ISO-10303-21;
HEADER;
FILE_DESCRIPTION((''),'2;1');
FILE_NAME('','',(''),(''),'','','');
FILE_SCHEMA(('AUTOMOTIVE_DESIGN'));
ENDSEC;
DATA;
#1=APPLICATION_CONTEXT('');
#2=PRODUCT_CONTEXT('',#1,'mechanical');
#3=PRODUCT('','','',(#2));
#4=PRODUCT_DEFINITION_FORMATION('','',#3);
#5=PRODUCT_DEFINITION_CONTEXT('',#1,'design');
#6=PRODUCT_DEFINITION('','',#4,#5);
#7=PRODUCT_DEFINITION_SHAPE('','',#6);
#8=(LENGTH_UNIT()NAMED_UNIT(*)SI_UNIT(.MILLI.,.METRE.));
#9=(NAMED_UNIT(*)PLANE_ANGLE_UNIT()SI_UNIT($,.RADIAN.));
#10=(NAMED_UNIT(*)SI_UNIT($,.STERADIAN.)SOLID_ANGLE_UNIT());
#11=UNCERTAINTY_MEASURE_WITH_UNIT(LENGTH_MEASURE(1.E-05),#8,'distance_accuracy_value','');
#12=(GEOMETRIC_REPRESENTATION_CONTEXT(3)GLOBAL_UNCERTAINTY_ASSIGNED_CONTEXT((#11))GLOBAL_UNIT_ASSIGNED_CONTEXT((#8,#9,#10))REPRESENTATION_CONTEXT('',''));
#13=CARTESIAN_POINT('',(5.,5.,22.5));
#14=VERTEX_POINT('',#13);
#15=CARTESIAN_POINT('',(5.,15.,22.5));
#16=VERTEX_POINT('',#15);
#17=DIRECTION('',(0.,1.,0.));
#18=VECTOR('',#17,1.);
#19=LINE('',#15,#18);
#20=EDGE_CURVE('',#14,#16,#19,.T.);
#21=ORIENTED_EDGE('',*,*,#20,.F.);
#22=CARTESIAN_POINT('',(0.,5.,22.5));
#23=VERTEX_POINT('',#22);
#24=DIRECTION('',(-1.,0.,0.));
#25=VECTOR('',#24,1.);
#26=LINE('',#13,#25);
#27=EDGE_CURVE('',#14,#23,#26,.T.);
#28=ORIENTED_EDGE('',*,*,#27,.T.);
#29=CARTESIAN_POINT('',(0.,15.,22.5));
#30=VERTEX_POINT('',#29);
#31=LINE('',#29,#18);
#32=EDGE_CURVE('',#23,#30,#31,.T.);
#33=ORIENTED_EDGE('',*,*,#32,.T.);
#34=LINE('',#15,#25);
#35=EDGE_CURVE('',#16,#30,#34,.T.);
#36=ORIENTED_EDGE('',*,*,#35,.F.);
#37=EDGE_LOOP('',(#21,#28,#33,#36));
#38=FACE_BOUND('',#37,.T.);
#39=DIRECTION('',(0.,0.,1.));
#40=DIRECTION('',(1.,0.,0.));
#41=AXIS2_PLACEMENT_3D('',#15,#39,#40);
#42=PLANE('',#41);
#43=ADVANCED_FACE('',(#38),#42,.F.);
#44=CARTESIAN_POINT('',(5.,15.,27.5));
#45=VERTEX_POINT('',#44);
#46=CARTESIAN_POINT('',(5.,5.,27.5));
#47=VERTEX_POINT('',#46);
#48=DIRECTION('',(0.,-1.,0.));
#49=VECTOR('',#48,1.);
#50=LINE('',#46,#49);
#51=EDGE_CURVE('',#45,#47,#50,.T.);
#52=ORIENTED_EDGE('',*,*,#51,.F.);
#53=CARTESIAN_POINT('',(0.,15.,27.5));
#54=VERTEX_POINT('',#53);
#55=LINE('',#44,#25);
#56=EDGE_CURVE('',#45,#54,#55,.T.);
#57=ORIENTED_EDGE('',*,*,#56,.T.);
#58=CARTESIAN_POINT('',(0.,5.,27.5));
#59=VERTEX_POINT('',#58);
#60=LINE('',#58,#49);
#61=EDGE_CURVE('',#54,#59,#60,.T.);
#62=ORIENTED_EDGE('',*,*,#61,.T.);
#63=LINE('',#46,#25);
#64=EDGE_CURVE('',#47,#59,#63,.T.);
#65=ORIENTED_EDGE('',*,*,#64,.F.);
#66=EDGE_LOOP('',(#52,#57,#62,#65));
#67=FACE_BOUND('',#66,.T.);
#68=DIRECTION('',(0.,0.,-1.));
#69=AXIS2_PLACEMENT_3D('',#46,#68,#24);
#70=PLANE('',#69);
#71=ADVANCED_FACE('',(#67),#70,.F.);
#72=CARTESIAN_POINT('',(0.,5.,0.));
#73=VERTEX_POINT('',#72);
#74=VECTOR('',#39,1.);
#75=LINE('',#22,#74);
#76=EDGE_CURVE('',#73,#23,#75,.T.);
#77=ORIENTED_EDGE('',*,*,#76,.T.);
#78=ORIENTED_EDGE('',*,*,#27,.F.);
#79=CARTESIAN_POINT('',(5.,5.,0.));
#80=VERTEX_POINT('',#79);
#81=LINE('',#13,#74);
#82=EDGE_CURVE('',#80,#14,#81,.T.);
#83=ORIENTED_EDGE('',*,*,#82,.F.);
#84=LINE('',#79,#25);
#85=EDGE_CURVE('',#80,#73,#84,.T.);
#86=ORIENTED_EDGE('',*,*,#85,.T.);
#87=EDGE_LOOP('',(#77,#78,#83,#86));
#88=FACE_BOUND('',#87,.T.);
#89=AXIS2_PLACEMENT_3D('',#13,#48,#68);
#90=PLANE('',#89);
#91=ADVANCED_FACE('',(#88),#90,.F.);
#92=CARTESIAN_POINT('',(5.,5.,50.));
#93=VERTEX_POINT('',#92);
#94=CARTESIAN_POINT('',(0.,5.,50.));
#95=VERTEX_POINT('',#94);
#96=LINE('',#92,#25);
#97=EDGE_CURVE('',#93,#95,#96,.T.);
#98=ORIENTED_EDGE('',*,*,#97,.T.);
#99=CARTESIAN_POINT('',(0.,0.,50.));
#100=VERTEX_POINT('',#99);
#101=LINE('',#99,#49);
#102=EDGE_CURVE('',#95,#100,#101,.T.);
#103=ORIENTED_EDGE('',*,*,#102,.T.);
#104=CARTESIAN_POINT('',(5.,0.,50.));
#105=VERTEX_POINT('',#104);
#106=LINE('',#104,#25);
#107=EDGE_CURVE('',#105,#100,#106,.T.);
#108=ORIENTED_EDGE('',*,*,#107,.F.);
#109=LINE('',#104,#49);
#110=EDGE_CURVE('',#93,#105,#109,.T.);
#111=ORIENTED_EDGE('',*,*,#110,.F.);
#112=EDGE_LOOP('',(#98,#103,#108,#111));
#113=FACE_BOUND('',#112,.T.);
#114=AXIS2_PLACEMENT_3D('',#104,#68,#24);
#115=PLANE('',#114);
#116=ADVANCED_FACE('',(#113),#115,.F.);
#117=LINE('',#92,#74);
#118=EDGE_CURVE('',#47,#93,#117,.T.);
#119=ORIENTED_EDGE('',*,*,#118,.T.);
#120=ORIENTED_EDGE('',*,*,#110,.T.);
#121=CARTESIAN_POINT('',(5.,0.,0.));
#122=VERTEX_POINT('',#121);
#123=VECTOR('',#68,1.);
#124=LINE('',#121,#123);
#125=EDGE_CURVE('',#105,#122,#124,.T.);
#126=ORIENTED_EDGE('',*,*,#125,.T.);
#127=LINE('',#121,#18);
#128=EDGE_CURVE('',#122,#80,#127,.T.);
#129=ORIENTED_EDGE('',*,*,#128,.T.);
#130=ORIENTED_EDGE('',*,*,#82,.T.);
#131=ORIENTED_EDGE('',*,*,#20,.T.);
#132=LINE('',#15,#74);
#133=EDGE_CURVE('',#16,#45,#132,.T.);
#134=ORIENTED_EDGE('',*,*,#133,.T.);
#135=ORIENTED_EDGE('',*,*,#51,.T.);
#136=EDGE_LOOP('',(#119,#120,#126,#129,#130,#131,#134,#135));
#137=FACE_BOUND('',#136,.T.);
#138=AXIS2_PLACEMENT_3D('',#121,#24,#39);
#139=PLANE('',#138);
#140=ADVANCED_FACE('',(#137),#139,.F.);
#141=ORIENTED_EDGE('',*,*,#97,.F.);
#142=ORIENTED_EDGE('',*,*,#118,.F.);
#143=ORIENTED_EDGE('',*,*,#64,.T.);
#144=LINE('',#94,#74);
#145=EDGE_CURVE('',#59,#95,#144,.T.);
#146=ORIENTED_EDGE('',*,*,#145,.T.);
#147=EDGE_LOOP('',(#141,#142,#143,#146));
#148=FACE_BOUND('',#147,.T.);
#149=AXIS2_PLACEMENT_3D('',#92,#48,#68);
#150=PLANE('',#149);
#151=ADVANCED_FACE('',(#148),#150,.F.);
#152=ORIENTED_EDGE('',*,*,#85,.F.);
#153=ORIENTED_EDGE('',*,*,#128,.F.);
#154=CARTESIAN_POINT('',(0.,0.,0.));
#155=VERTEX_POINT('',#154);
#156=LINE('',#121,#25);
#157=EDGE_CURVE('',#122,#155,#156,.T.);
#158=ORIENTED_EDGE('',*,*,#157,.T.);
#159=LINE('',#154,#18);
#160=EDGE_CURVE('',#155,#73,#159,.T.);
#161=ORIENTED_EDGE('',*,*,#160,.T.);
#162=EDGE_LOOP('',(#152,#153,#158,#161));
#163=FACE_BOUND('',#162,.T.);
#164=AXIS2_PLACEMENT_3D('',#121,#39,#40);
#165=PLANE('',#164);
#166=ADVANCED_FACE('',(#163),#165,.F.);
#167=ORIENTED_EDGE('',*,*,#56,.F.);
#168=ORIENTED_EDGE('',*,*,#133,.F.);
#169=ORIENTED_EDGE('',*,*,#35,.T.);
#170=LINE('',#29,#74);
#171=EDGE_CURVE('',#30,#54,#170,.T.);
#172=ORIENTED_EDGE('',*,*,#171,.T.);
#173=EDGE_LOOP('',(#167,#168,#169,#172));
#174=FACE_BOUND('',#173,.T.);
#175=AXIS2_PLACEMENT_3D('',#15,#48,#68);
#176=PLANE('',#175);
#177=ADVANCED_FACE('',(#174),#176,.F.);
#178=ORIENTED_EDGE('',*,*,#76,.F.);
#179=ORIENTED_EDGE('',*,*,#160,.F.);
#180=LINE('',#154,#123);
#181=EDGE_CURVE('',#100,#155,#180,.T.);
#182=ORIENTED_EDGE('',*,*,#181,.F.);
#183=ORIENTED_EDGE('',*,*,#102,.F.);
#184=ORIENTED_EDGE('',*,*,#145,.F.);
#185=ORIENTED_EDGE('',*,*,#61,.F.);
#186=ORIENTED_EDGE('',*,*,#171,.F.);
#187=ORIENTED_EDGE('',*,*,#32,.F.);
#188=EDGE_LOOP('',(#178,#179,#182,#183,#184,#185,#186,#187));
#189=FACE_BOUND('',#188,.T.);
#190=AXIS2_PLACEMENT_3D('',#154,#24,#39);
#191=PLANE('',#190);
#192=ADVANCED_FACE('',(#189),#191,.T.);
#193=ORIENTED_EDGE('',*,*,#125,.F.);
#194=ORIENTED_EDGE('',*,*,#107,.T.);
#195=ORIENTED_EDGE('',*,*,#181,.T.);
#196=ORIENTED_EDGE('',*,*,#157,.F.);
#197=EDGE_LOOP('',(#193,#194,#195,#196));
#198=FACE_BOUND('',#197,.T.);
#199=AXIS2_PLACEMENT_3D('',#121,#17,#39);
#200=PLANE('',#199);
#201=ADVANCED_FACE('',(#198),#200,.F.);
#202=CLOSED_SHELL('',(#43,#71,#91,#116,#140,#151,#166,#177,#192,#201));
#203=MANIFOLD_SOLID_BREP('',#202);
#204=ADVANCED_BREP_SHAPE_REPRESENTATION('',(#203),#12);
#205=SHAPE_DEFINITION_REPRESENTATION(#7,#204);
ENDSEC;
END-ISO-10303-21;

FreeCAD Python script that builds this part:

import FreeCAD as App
import Part
import Sketcher

V = App.Vector


def add_polygon(sketch, points):
    """Adds a closed chain of lines whose ends are joined by coincident constraints."""
    first, n = sketch.GeometryCount, len(points)
    for a, b in zip(points, points[1:] + points[:1]):
        sketch.addGeometry(Part.LineSegment(App.Vector(*a, 0), App.Vector(*b, 0)), False)
    for i in range(n):
        sketch.addConstraint(Sketcher.Constraint("Coincident", first + i, 2, first + (i + 1) % n, 1))

doc = App.newDocument("Part")
params = doc.addObject("Spreadsheet::Sheet", "Params")
for row, (alias, value) in enumerate([
    ("sketch1_width", "5 mm"),
    ("sketch1_width2", "10 mm"),
    ("sketch1_height", "50 mm"),
    ("pad1_length", "5 mm"),
], start=1):
    params.set(f"A{row}", alias)
    params.set(f"B{row}", "=" + value)
    params.setAlias(f"B{row}", alias)

body = doc.addObject("PartDesign::Body", "Body")

# Sketch on YZ plane
sketch1 = body.newObject("Sketcher::SketchObject", "Sketch")
sketch1.AttachmentSupport = (doc.getObject("YZ_Plane"), [""])
sketch1.MapMode = "FlatFace"
add_polygon(sketch1, [(5, 28), (5, 50), (0, 50), (0, 0), (5, 0), (5, 22), (15, 22), (15, 28)])  # lines 0-7
sketch1.addConstraint(Sketcher.Constraint("Vertical", 0))
sketch1.addConstraint(Sketcher.Constraint("Horizontal", 1))
sketch1.addConstraint(Sketcher.Constraint("Vertical", 2))
sketch1.addConstraint(Sketcher.Constraint("Horizontal", 3))
sketch1.addConstraint(Sketcher.Constraint("Vertical", 4))
sketch1.addConstraint(Sketcher.Constraint("Horizontal", 5))
sketch1.addConstraint(Sketcher.Constraint("Vertical", 6))
sketch1.addConstraint(Sketcher.Constraint("Horizontal", 7))
sketch1.addConstraint(Sketcher.Constraint("Coincident", 2, 2, -1, 1))
sketch1.addConstraint(Sketcher.Constraint("Vertical", 0, 2, 3, 2))
sketch1.addConstraint(Sketcher.Constraint("Equal", 0, 4))
sketch1.addConstraint(Sketcher.Constraint("Equal", 3, 6))
sketch1.addConstraint(Sketcher.Constraint("DistanceX", 1, 2, 1, 1, 5.0))
sketch1.addConstraint(Sketcher.Constraint("DistanceX", 5, 1, 5, 2, 10.0))
sketch1.addConstraint(Sketcher.Constraint("DistanceY", 2, 2, 2, 1, 50.0))
sketch1.setExpression("Constraints[20]", "Params.sketch1_width")
sketch1.setExpression("Constraints[21]", "Params.sketch1_width2")
sketch1.setExpression("Constraints[22]", "Params.sketch1_height")
pad1 = body.newObject("PartDesign::Pad", "Pad")
pad1.Profile = sketch1
pad1.setExpression("Length", "Params.pad1_length")

doc.recompute()
